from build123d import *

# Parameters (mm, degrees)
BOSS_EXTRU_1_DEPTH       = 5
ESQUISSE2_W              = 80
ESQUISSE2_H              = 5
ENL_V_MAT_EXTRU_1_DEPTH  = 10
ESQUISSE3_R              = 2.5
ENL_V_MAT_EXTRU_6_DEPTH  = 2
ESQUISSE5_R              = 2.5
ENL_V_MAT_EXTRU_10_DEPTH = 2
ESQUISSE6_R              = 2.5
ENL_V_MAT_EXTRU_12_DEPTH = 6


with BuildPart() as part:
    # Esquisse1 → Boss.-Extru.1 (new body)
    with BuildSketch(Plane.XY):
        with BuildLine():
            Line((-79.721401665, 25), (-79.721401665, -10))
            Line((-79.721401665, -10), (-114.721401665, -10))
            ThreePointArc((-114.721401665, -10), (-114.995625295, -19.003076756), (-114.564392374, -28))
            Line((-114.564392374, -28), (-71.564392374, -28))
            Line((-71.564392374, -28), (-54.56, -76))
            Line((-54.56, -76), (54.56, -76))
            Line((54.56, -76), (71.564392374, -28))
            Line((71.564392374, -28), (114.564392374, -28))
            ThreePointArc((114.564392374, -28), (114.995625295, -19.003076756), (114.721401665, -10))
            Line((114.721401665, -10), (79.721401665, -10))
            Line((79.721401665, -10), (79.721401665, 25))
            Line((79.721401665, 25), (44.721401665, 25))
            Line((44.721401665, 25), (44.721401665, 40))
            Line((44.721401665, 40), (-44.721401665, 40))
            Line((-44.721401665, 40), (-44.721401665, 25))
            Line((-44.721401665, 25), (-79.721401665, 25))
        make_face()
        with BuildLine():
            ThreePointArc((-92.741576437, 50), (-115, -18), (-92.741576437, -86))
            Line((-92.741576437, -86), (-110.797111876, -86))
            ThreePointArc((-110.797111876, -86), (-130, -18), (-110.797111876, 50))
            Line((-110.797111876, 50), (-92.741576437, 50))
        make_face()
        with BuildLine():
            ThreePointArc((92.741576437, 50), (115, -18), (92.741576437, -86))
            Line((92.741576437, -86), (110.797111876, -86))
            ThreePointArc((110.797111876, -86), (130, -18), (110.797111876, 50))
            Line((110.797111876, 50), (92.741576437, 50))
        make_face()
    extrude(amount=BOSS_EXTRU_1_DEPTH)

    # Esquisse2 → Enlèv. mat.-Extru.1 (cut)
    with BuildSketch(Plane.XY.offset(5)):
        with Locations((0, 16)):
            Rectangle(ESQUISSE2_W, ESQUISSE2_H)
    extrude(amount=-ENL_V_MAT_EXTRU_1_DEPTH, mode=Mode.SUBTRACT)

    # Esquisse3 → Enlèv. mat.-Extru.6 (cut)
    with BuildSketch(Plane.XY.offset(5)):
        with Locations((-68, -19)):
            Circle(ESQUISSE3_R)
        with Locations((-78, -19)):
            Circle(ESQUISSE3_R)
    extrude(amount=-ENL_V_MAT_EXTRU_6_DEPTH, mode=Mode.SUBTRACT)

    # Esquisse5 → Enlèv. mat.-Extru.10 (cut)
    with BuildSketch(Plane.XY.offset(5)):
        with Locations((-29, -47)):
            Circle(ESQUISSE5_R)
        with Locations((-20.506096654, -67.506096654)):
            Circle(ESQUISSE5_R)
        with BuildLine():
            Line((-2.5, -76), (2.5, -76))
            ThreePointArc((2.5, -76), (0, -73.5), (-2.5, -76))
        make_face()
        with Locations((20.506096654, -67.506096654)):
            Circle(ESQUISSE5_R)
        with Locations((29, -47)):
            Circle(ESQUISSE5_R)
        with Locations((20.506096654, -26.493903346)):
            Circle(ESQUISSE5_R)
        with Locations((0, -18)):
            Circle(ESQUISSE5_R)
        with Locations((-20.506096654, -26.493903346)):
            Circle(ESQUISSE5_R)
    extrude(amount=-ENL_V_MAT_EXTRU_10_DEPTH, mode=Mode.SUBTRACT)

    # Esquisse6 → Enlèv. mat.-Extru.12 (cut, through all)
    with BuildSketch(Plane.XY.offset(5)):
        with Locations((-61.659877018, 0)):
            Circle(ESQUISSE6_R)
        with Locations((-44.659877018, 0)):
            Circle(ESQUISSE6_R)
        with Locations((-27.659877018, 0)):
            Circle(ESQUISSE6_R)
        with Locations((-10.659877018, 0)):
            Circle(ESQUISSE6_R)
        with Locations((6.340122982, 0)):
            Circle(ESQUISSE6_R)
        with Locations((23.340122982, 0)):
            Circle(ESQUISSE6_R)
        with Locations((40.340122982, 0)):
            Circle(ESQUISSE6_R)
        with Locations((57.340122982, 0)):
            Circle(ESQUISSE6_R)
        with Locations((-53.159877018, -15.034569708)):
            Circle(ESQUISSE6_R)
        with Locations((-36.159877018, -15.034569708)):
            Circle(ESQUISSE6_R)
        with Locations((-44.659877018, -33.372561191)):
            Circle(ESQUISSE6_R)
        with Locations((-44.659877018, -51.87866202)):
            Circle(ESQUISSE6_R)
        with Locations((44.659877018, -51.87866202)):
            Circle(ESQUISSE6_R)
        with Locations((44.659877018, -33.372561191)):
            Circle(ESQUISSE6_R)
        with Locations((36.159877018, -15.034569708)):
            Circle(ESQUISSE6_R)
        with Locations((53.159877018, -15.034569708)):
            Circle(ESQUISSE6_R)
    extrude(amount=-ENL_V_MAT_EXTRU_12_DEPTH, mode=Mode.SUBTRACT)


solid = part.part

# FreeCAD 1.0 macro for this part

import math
import FreeCAD as App
import Part
import Sketcher
from FreeCAD import Vector

doc = App.newDocument("Part")
body = doc.addObject("PartDesign::Body", "Body")

# Sketch on XY plane
sketch1 = doc.addObject("Sketcher::SketchObject", "Sketch")
body.addObject(sketch1)
sketch1.AttachmentSupport = (doc.XY_Plane, [""])
sketch1.MapMode = "FlatFace"
sketch1.addGeometry(Part.LineSegment(Vector(-80, 25, 0), Vector(-80, -10, 0)), False)
sketch1.addGeometry(Part.LineSegment(Vector(-80, -10, 0), Vector(-115, -10, 0)), False)
sketch1.addGeometry(Part.ArcOfCircle(Part.Circle(Vector(0, -18, 0), Vector(0, 0, 1), 115), math.radians(144), math.radians(176)), False)
sketch1.addGeometry(Part.LineSegment(Vector(-93, 50, 0), Vector(-111, 50, 0)), False)
sketch1.addGeometry(Part.ArcOfCircle(Part.Circle(Vector(0, -18, 0), Vector(0, 0, 1), 130), math.radians(148), math.radians(212)), False)
sketch1.addGeometry(Part.LineSegment(Vector(-111, -86, 0), Vector(-93, -86, 0)), False)
sketch1.addGeometry(Part.ArcOfCircle(Part.Circle(Vector(0, -18, 0), Vector(0, 0, 1), 115), math.radians(-175), math.radians(-144)), False)
sketch1.addGeometry(Part.LineSegment(Vector(-115, -28, 0), Vector(-72, -28, 0)), False)
sketch1.addGeometry(Part.LineSegment(Vector(-72, -28, 0), Vector(-55, -76, 0)), False)
sketch1.addGeometry(Part.LineSegment(Vector(-55, -76, 0), Vector(55, -76, 0)), False)
sketch1.addGeometry(Part.LineSegment(Vector(55, -76, 0), Vector(72, -28, 0)), False)
sketch1.addGeometry(Part.LineSegment(Vector(72, -28, 0), Vector(115, -28, 0)), False)
sketch1.addGeometry(Part.ArcOfCircle(Part.Circle(Vector(0, -18, 0), Vector(0, 0, 1), 115), math.radians(-36), math.radians(-5)), False)
sketch1.addGeometry(Part.LineSegment(Vector(93, -86, 0), Vector(111, -86, 0)), False)
sketch1.addGeometry(Part.ArcOfCircle(Part.Circle(Vector(0, -18, 0), Vector(0, 0, 1), 130), math.radians(-32), math.radians(32)), False)
sketch1.addGeometry(Part.LineSegment(Vector(111, 50, 0), Vector(93, 50, 0)), False)
sketch1.addGeometry(Part.ArcOfCircle(Part.Circle(Vector(0, -18, 0), Vector(0, 0, 1), 115), math.radians(4), math.radians(36)), False)
sketch1.addGeometry(Part.LineSegment(Vector(115, -10, 0), Vector(80, -10, 0)), False)
sketch1.addGeometry(Part.LineSegment(Vector(80, -10, 0), Vector(80, 25, 0)), False)
sketch1.addGeometry(Part.LineSegment(Vector(80, 25, 0), Vector(45, 25, 0)), False)
sketch1.addGeometry(Part.LineSegment(Vector(45, 25, 0), Vector(45, 40, 0)), False)
sketch1.addGeometry(Part.LineSegment(Vector(45, 40, 0), Vector(-45, 40, 0)), False)
sketch1.addGeometry(Part.LineSegment(Vector(-45, 40, 0), Vector(-45, 25, 0)), False)
sketch1.addGeometry(Part.LineSegment(Vector(-45, 25, 0), Vector(-80, 25, 0)), False)
sketch1.addConstraint(Sketcher.Constraint("Coincident", 0, 2, 1, 1))
sketch1.addConstraint(Sketcher.Constraint("Coincident", 1, 2, 2, 2))
sketch1.addConstraint(Sketcher.Constraint("Coincident", 2, 1, 3, 1))
sketch1.addConstraint(Sketcher.Constraint("Coincident", 3, 2, 4, 1))
sketch1.addConstraint(Sketcher.Constraint("Coincident", 4, 2, 5, 1))
sketch1.addConstraint(Sketcher.Constraint("Coincident", 5, 2, 6, 2))
sketch1.addConstraint(Sketcher.Constraint("Coincident", 6, 1, 7, 1))
sketch1.addConstraint(Sketcher.Constraint("Coincident", 7, 2, 8, 1))
sketch1.addConstraint(Sketcher.Constraint("Coincident", 8, 2, 9, 1))
sketch1.addConstraint(Sketcher.Constraint("Coincident", 9, 2, 10, 1))
sketch1.addConstraint(Sketcher.Constraint("Coincident", 10, 2, 11, 1))
sketch1.addConstraint(Sketcher.Constraint("Coincident", 11, 2, 12, 2))
sketch1.addConstraint(Sketcher.Constraint("Coincident", 12, 1, 13, 1))
sketch1.addConstraint(Sketcher.Constraint("Coincident", 13, 2, 14, 1))
sketch1.addConstraint(Sketcher.Constraint("Coincident", 14, 2, 15, 1))
sketch1.addConstraint(Sketcher.Constraint("Coincident", 15, 2, 16, 2))
sketch1.addConstraint(Sketcher.Constraint("Coincident", 16, 1, 17, 1))
sketch1.addConstraint(Sketcher.Constraint("Coincident", 17, 2, 18, 1))
sketch1.addConstraint(Sketcher.Constraint("Coincident", 18, 2, 19, 1))
sketch1.addConstraint(Sketcher.Constraint("Coincident", 19, 2, 20, 1))
sketch1.addConstraint(Sketcher.Constraint("Coincident", 20, 2, 21, 1))
sketch1.addConstraint(Sketcher.Constraint("Coincident", 21, 2, 22, 1))
sketch1.addConstraint(Sketcher.Constraint("Coincident", 22, 2, 23, 1))
sketch1.addConstraint(Sketcher.Constraint("Coincident", 23, 2, 0, 1))
sketch1.addConstraint(Sketcher.Constraint("Vertical", 0))
sketch1.addConstraint(Sketcher.Constraint("Horizontal", 1))
sketch1.addConstraint(Sketcher.Constraint("Horizontal", 3))
sketch1.addConstraint(Sketcher.Constraint("Horizontal", 5))
sketch1.addConstraint(Sketcher.Constraint("Horizontal", 7))
sketch1.addConstraint(Sketcher.Constraint("Horizontal", 9))
sketch1.addConstraint(Sketcher.Constraint("Horizontal", 11))
sketch1.addConstraint(Sketcher.Constraint("Horizontal", 13))
sketch1.addConstraint(Sketcher.Constraint("Horizontal", 15))
sketch1.addConstraint(Sketcher.Constraint("Horizontal", 17))
sketch1.addConstraint(Sketcher.Constraint("Vertical", 18))
sketch1.addConstraint(Sketcher.Constraint("Horizontal", 19))
sketch1.addConstraint(Sketcher.Constraint("Vertical", 20))
sketch1.addConstraint(Sketcher.Constraint("Horizontal", 21))
sketch1.addConstraint(Sketcher.Constraint("Vertical", 22))
sketch1.addConstraint(Sketcher.Constraint("Horizontal", 23))
sketch1.addConstraint(Sketcher.Constraint("Coincident", 4, 3, 2, 3))
sketch1.addConstraint(Sketcher.Constraint("Coincident", 6, 3, 2, 3))
sketch1.addConstraint(Sketcher.Constraint("Coincident", 12, 3, 2, 3))
sketch1.addConstraint(Sketcher.Constraint("Coincident", 14, 3, 2, 3))
sketch1.addConstraint(Sketcher.Constraint("Coincident", 16, 3, 2, 3))
sketch1.addConstraint(Sketcher.Constraint("Equal", 2, 6))
sketch1.addConstraint(Sketcher.Constraint("Equal", 6, 12))
sketch1.addConstraint(Sketcher.Constraint("Equal", 4, 14))
sketch1.addConstraint(Sketcher.Constraint("Equal", 12, 16))
sketch1.addConstraint(Sketcher.Constraint("Symmetric", 7, 2, 10, 2, -2))
sketch1.addConstraint(Sketcher.Constraint("Symmetric", 5, 2, 12, 1, -2))
sketch1.addConstraint(Sketcher.Constraint("Symmetric", 0, 2, 17, 2, -2))
sketch1.addConstraint(Sketcher.Constraint("Symmetric", 19, 2, 22, 2, -2))
sketch1.addConstraint(Sketcher.Constraint("Horizontal", 3, 2, 14, 2))
sketch1.addConstraint(Sketcher.Constraint("Vertical", 3, 2, 4, 2))
sketch1.addConstraint(Sketcher.Constraint("Equal", 17, 19))
sketch1.addConstraint(Sketcher.Constraint("Equal", 23, 0))
sketch1.addConstraint(Sketcher.Constraint("Equal", 8, 10))
sketch1.addConstraint(Sketcher.Constraint("Radius", 2, 115.0))
sketch1.addConstraint(Sketcher.Constraint("Radius", 4, 130.0))
sketch1.addConstraint(Sketcher.Constraint("DistanceX", 1, 2, 1, 1, 35.0))
sketch1.addConstraint(Sketcher.Constraint("DistanceX", 7, 1, 7, 2, 43.0))
sketch1.addConstraint(Sketcher.Constraint("DistanceY", 20, 1, 20, 2, 15.0))
sketch1.addConstraint(Sketcher.Constraint("DistanceY", 2, 3, -1, 1, 18.0))
sketch1.addConstraint(Sketcher.Constraint("DistanceY", 0, 2, -1, 1, 10.0))
sketch1.addConstraint(Sketcher.Constraint("DistanceY", -1, 1, 2, 1, 50.0))
sketch1.addConstraint(Sketcher.Constraint("DistanceY", 6, 1, -1, 1, 28.0))
sketch1.addConstraint(Sketcher.Constraint("DistanceY", 8, 2, -1, 1, 76.0))
sketch1.addConstraint(Sketcher.Constraint("DistanceX", 9, 1, 9, 2, 109.12))
pad1 = doc.addObject("PartDesign::Pad", "Pad")
body.addObject(pad1)
pad1.Profile = sketch1
pad1.Length = 5

# Sketch on XY plane
sketch2 = doc.addObject("Sketcher::SketchObject", "Sketch001")
body.addObject(sketch2)
sketch2.AttachmentSupport = (doc.XY_Plane, [""])
sketch2.MapMode = "FlatFace"
sketch2.AttachmentOffset = App.Placement(Vector(0, 0, 5), App.Rotation())
sketch2.addGeometry(Part.LineSegment(Vector(-40, 18, 0), Vector(-40, 14, 0)), False)
sketch2.addGeometry(Part.LineSegment(Vector(-40, 14, 0), Vector(40, 14, 0)), False)
sketch2.addGeometry(Part.LineSegment(Vector(40, 14, 0), Vector(40, 18, 0)), False)
sketch2.addGeometry(Part.LineSegment(Vector(40, 18, 0), Vector(-40, 18, 0)), False)
sketch2.addConstraint(Sketcher.Constraint("Coincident", 0, 2, 1, 1))
sketch2.addConstraint(Sketcher.Constraint("Coincident", 1, 2, 2, 1))
sketch2.addConstraint(Sketcher.Constraint("Coincident", 2, 2, 3, 1))
sketch2.addConstraint(Sketcher.Constraint("Coincident", 3, 2, 0, 1))
sketch2.addConstraint(Sketcher.Constraint("Vertical", 0))
sketch2.addConstraint(Sketcher.Constraint("Horizontal", 1))
sketch2.addConstraint(Sketcher.Constraint("Vertical", 2))
sketch2.addConstraint(Sketcher.Constraint("Horizontal", 3))
sketch2.addConstraint(Sketcher.Constraint("DistanceX", 1, 1, 1, 2, 80.0))
sketch2.addConstraint(Sketcher.Constraint("DistanceY", 0, 2, 0, 1, 5.0))
sketch2.addConstraint(Sketcher.Constraint("DistanceX", 0, 2, -1, 1, 40.0))
sketch2.addConstraint(Sketcher.Constraint("DistanceY", -1, 1, 0, 2, 13.5))
pocket1 = doc.addObject("PartDesign::Pocket", "Pocket")
body.addObject(pocket1)
pocket1.Profile = sketch2
pocket1.Length = 10

# Sketch on XY plane
sketch3 = doc.addObject("Sketcher::SketchObject", "Sketch002")
body.addObject(sketch3)
sketch3.AttachmentSupport = (doc.XY_Plane, [""])
sketch3.MapMode = "FlatFace"
sketch3.AttachmentOffset = App.Placement(Vector(0, 0, 5), App.Rotation())
sketch3.addGeometry(Part.Circle(Vector(-68, -19, 0), Vector(0, 0, 1), 2.5), False)
sketch3.addGeometry(Part.Circle(Vector(-78, -19, 0), Vector(0, 0, 1), 2.5), False)
sketch3.addConstraint(Sketcher.Constraint("Equal", 0, 1))
sketch3.addConstraint(Sketcher.Constraint("Horizontal", 0, 3, 1, 3))
sketch3.addConstraint(Sketcher.Constraint("Diameter", 0, 5.0))
sketch3.addConstraint(Sketcher.Constraint("DistanceX", 0, 3, -1, 1, 68.0))
sketch3.addConstraint(Sketcher.Constraint("DistanceY", 0, 3, -1, 1, 19.0))
sketch3.addConstraint(Sketcher.Constraint("DistanceX", 1, 3, -1, 1, 78.0))
pocket2 = doc.addObject("PartDesign::Pocket", "Pocket001")
body.addObject(pocket2)
pocket2.Profile = sketch3
pocket2.Length = 2

# Sketch on XY plane
sketch4 = doc.addObject("Sketcher::SketchObject", "Sketch003")
body.addObject(sketch4)
sketch4.AttachmentSupport = (doc.XY_Plane, [""])
sketch4.MapMode = "FlatFace"
sketch4.AttachmentOffset = App.Placement(Vector(0, 0, 5), App.Rotation())
sketch4.addGeometry(Part.Circle(Vector(-29, -47, 0), Vector(0, 0, 1), 2.5), False)
sketch4.addGeometry(Part.Circle(Vector(-20.5, -67.5, 0), Vector(0, 0, 1), 2.5), False)
sketch4.addGeometry(Part.LineSegment(Vector(-2.5, -76, 0), Vector(2.5, -76, 0)), False)
sketch4.addGeometry(Part.ArcOfCircle(Part.Circle(Vector(0, -76, 0), Vector(0, 0, 1), 2.5), math.radians(0), math.radians(180)), False)
sketch4.addGeometry(Part.Circle(Vector(20.5, -67.5, 0), Vector(0, 0, 1), 2.5), False)
sketch4.addGeometry(Part.Circle(Vector(29, -47, 0), Vector(0, 0, 1), 2.5), False)
sketch4.addGeometry(Part.Circle(Vector(20.5, -26.5, 0), Vector(0, 0, 1), 2.5), False)
sketch4.addGeometry(Part.Circle(Vector(0, -18, 0), Vector(0, 0, 1), 2.5), False)
sketch4.addGeometry(Part.Circle(Vector(-20.5, -26.5, 0), Vector(0, 0, 1), 2.5), False)
sketch4.addConstraint(Sketcher.Constraint("Coincident", 2, 1, 3, 2))
sketch4.addConstraint(Sketcher.Constraint("Coincident", 3, 1, 2, 2))
sketch4.addConstraint(Sketcher.Constraint("Horizontal", 2))
sketch4.addConstraint(Sketcher.Constraint("Equal", 0, 1))
sketch4.addConstraint(Sketcher.Constraint("Equal", 1, 3))
sketch4.addConstraint(Sketcher.Constraint("Equal", 3, 4))
sketch4.addConstraint(Sketcher.Constraint("Equal", 4, 5))
sketch4.addConstraint(Sketcher.Constraint("Equal", 5, 6))
sketch4.addConstraint(Sketcher.Constraint("Equal", 6, 7))
sketch4.addConstraint(Sketcher.Constraint("Equal", 7, 8))
sketch4.addConstraint(Sketcher.Constraint("Symmetric", 1, 3, 4, 3, -2))
sketch4.addConstraint(Sketcher.Constraint("Symmetric", 0, 3, 5, 3, -2))
sketch4.addConstraint(Sketcher.Constraint("Symmetric", 6, 3, 8, 3, -2))
sketch4.addConstraint(Sketcher.Constraint("PointOnObject", 3, 3, -2))
sketch4.addConstraint(Sketcher.Constraint("PointOnObject", 7, 3, -2))
sketch4.addConstraint(Sketcher.Constraint("Horizontal", 3, 3, 2, 1))
sketch4.addConstraint(Sketcher.Constraint("Vertical", 4, 3, 6, 3))
sketch4.addConstraint(Sketcher.Constraint("Diameter", 0, 5.0))
sketch4.addConstraint(Sketcher.Constraint("DistanceX", 0, 3, -1, 1, 29.0))
sketch4.addConstraint(Sketcher.Constraint("DistanceY", 0, 3, -1, 1, 47.0))
sketch4.addConstraint(Sketcher.Constraint("DistanceY", 3, 3, -1, 1, 76.0))
sketch4.addConstraint(Sketcher.Constraint("DistanceY", 7, 3, -1, 1, 18.0))
sketch4.addConstraint(Sketcher.Constraint("DistanceX", 1, 3, -1, 1, 20.506097))
sketch4.addConstraint(Sketcher.Constraint("DistanceY", 1, 3, -1, 1, 67.506097))
sketch4.addConstraint(Sketcher.Constraint("DistanceY", 6, 3, -1, 1, 26.493903))
pocket3 = doc.addObject("PartDesign::Pocket", "Pocket002")
body.addObject(pocket3)
pocket3.Profile = sketch4
pocket3.Length = 2

# Sketch on XY plane
sketch5 = doc.addObject("Sketcher::SketchObject", "Sketch004")
body.addObject(sketch5)
sketch5.AttachmentSupport = (doc.XY_Plane, [""])
sketch5.MapMode = "FlatFace"
sketch5.AttachmentOffset = App.Placement(Vector(0, 0, 5), App.Rotation())
sketch5.addGeometry(Part.Circle(Vector(-61.7, 0, 0), Vector(0, 0, 1), 2.5), False)
sketch5.addGeometry(Part.Circle(Vector(-44.7, 0, 0), Vector(0, 0, 1), 2.5), False)
sketch5.addGeometry(Part.Circle(Vector(-27.7, 0, 0), Vector(0, 0, 1), 2.5), False)
sketch5.addGeometry(Part.Circle(Vector(-10.7, 0, 0), Vector(0, 0, 1), 2.5), False)
sketch5.addGeometry(Part.Circle(Vector(6.3, 0, 0), Vector(0, 0, 1), 2.5), False)
sketch5.addGeometry(Part.Circle(Vector(23.3, 0, 0), Vector(0, 0, 1), 2.5), False)
sketch5.addGeometry(Part.Circle(Vector(40.3, 0, 0), Vector(0, 0, 1), 2.5), False)
sketch5.addGeometry(Part.Circle(Vector(57.3, 0, 0), Vector(0, 0, 1), 2.5), False)
sketch5.addGeometry(Part.Circle(Vector(-53.2, -15, 0), Vector(0, 0, 1), 2.5), False)
sketch5.addGeometry(Part.Circle(Vector(-36.2, -15, 0), Vector(0, 0, 1), 2.5), False)
sketch5.addGeometry(Part.Circle(Vector(-44.7, -33.4, 0), Vector(0, 0, 1), 2.5), False)
sketch5.addGeometry(Part.Circle(Vector(-44.7, -51.9, 0), Vector(0, 0, 1), 2.5), False)
sketch5.addGeometry(Part.Circle(Vector(44.7, -51.9, 0), Vector(0, 0, 1), 2.5), False)
sketch5.addGeometry(Part.Circle(Vector(44.7, -33.4, 0), Vector(0, 0, 1), 2.5), False)
sketch5.addGeometry(Part.Circle(Vector(36.2, -15, 0), Vector(0, 0, 1), 2.5), False)
sketch5.addGeometry(Part.Circle(Vector(53.2, -15, 0), Vector(0, 0, 1), 2.5), False)
sketch5.addConstraint(Sketcher.Constraint("Equal", 0, 1))
sketch5.addConstraint(Sketcher.Constraint("Equal", 1, 2))
sketch5.addConstraint(Sketcher.Constraint("Equal", 2, 3))
sketch5.addConstraint(Sketcher.Constraint("Equal", 3, 4))
sketch5.addConstraint(Sketcher.Constraint("Equal", 4, 5))
sketch5.addConstraint(Sketcher.Constraint("Equal", 5, 6))
sketch5.addConstraint(Sketcher.Constraint("Equal", 6, 7))
sketch5.addConstraint(Sketcher.Constraint("Equal", 7, 8))
sketch5.addConstraint(Sketcher.Constraint("Equal", 8, 9))
sketch5.addConstraint(Sketcher.Constraint("Equal", 9, 10))
sketch5.addConstraint(Sketcher.Constraint("Equal", 10, 11))
sketch5.addConstraint(Sketcher.Constraint("Equal", 11, 12))
sketch5.addConstraint(Sketcher.Constraint("Equal", 12, 13))
sketch5.addConstraint(Sketcher.Constraint("Equal", 13, 14))
sketch5.addConstraint(Sketcher.Constraint("Equal", 14, 15))
sketch5.addConstraint(Sketcher.Constraint("Symmetric", 11, 3, 12, 3, -2))
sketch5.addConstraint(Sketcher.Constraint("Symmetric", 10, 3, 13, 3, -2))
sketch5.addConstraint(Sketcher.Constraint("Symmetric", 9, 3, 14, 3, -2))
sketch5.addConstraint(Sketcher.Constraint("Symmetric", 8, 3, 15, 3, -2))
sketch5.addConstraint(Sketcher.Constraint("PointOnObject", 0, 3, -1))
sketch5.addConstraint(Sketcher.Constraint("PointOnObject", 1, 3, -1))
sketch5.addConstraint(Sketcher.Constraint("PointOnObject", 2, 3, -1))
sketch5.addConstraint(Sketcher.Constraint("PointOnObject", 3, 3, -1))
sketch5.addConstraint(Sketcher.Constraint("PointOnObject", 4, 3, -1))
sketch5.addConstraint(Sketcher.Constraint("PointOnObject", 5, 3, -1))
sketch5.addConstraint(Sketcher.Constraint("PointOnObject", 6, 3, -1))
sketch5.addConstraint(Sketcher.Constraint("PointOnObject", 7, 3, -1))
sketch5.addConstraint(Sketcher.Constraint("Horizontal", 8, 3, 9, 3))
sketch5.addConstraint(Sketcher.Constraint("Vertical", 1, 3, 10, 3))
sketch5.addConstraint(Sketcher.Constraint("Vertical", 10, 3, 11, 3))
sketch5.addConstraint(Sketcher.Constraint("Diameter", 0, 5.0))
sketch5.addConstraint(Sketcher.Constraint("DistanceX", 0, 3, 1, 3, 17.0))
sketch5.addConstraint(Sketcher.Constraint("DistanceX", 1, 3, 2, 3, 17.0))
sketch5.addConstraint(Sketcher.Constraint("DistanceX", 2, 3, 3, 3, 17.0))
sketch5.addConstraint(Sketcher.Constraint("DistanceX", 3, 3, 4, 3, 17.0))
sketch5.addConstraint(Sketcher.Constraint("DistanceX", 4, 3, 5, 3, 17.0))
sketch5.addConstraint(Sketcher.Constraint("DistanceX", 5, 3, 6, 3, 17.0))
sketch5.addConstraint(Sketcher.Constraint("DistanceX", 6, 3, 7, 3, 17.0))
sketch5.addConstraint(Sketcher.Constraint("DistanceX", 8, 3, 9, 3, 17.0))
sketch5.addConstraint(Sketcher.Constraint("DistanceX", 0, 3, 8, 3, 8.5))
sketch5.addConstraint(Sketcher.Constraint("DistanceY", 11, 3, 10, 3, 18.506101))
sketch5.addConstraint(Sketcher.Constraint("DistanceY", 8, 3, -1, 1, 15.03457))
sketch5.addConstraint(Sketcher.Constraint("DistanceY", 10, 3, -1, 1, 33.372561))
sketch5.addConstraint(Sketcher.Constraint("DistanceX", 0, 3, -1, 1, 61.659877))
pocket4 = doc.addObject("PartDesign::Pocket", "Pocket003")
body.addObject(pocket4)
pocket4.Profile = sketch5
pocket4.Type = "ThroughAll"

doc.recompute()
